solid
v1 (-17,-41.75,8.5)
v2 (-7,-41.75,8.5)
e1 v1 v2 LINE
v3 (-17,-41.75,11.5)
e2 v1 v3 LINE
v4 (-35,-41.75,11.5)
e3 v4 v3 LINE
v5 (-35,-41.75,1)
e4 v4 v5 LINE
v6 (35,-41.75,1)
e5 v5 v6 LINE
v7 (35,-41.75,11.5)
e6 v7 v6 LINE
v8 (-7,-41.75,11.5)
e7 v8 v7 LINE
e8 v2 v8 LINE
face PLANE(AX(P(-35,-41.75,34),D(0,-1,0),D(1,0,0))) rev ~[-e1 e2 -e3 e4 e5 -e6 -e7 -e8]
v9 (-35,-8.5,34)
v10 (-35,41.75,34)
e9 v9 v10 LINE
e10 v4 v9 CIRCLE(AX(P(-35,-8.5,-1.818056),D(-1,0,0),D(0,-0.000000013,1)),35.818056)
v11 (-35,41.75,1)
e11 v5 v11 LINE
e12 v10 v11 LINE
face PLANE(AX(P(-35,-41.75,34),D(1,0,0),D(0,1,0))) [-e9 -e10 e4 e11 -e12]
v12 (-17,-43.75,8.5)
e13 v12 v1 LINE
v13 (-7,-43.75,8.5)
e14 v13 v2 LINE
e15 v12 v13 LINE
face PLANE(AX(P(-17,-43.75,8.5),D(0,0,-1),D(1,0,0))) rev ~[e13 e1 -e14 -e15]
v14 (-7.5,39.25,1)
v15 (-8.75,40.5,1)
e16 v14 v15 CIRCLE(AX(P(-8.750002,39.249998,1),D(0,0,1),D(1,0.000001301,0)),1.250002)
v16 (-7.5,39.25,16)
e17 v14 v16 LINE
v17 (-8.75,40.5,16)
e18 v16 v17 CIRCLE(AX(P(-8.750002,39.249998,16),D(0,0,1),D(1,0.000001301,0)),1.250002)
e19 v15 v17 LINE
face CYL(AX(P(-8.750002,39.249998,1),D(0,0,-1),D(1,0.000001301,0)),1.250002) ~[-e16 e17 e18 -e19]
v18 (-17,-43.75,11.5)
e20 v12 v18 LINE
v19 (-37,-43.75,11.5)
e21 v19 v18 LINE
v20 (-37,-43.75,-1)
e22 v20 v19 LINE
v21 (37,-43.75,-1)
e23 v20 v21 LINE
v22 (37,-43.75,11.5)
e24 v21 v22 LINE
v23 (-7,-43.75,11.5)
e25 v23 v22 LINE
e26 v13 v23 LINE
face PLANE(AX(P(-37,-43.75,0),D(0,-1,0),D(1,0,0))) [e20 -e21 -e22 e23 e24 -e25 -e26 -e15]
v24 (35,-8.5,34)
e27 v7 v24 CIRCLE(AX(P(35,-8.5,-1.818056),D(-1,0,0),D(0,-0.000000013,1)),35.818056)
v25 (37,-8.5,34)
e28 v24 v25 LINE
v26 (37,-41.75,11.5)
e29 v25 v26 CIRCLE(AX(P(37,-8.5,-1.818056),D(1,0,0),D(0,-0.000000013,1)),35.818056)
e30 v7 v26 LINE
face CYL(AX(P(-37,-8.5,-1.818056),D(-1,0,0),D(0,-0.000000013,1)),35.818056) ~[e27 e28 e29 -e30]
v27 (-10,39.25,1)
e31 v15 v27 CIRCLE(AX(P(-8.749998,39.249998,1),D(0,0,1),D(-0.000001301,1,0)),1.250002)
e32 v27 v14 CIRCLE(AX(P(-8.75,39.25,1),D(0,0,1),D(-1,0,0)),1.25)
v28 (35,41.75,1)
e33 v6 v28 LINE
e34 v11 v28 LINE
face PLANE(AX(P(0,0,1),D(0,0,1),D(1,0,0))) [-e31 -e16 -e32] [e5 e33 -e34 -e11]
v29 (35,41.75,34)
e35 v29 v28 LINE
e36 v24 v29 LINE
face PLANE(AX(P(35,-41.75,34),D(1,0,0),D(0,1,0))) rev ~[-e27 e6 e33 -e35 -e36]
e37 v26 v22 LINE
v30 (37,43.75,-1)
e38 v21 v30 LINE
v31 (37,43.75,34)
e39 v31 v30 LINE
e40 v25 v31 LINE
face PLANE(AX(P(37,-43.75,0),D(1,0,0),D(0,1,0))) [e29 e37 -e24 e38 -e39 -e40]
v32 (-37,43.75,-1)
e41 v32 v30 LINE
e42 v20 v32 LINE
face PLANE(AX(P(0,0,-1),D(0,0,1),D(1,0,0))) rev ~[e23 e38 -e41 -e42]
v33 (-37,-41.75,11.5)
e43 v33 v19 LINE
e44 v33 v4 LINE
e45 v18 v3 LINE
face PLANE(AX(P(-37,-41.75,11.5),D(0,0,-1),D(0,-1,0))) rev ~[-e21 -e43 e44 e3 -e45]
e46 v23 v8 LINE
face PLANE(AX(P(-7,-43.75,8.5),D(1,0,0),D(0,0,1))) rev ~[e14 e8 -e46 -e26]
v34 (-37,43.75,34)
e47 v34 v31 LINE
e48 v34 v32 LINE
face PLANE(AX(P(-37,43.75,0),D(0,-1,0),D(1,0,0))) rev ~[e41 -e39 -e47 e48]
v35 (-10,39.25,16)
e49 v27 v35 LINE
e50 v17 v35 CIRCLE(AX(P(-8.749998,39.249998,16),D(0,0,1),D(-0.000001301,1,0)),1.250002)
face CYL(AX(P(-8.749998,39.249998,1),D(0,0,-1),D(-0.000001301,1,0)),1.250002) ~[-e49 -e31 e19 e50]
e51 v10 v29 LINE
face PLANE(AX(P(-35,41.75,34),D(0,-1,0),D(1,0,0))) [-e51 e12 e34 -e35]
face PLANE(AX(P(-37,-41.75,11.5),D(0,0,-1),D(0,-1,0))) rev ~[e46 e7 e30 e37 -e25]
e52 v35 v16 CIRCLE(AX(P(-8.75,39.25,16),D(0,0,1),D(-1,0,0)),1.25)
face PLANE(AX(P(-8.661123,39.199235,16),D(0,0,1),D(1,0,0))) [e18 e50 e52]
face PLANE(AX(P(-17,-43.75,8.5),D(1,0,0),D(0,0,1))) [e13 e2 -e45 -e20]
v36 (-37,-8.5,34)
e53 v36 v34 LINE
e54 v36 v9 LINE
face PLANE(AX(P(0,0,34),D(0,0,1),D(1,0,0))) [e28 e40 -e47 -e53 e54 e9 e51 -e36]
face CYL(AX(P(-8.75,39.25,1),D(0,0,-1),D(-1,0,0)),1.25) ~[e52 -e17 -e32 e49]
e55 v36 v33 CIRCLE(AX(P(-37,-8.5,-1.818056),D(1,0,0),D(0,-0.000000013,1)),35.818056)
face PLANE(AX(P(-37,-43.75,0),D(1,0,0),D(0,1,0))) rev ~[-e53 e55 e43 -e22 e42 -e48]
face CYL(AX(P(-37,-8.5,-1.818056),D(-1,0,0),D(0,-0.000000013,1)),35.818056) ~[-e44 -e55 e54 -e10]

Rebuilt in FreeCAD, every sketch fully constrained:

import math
import FreeCAD as App
import Part
import Sketcher

V = App.Vector
Q = App.Units.Quantity

doc = App.newDocument("Part")
body = doc.addObject("PartDesign::Body", "Body")

sketch1 = body.newObject("Sketcher::SketchObject", "Sketch")
sketch1.AttachmentSupport = (doc.getObject("XY_Plane"), [""])
sketch1.MapMode = "FlatFace"
sketch1.addGeometry(Part.LineSegment(V(-37, 44, 0), V(-37, -44, 0)), False)
sketch1.addGeometry(Part.LineSegment(V(-37, -44, 0), V(37, -44, 0)), False)
sketch1.addGeometry(Part.LineSegment(V(37, -44, 0), V(37, 44, 0)), False)
sketch1.addGeometry(Part.LineSegment(V(37, 44, 0), V(-37, 44, 0)), False)
sketch1.addConstraint(Sketcher.Constraint("Coincident", 0, 2, 1, 1))
sketch1.addConstraint(Sketcher.Constraint("Coincident", 1, 2, 2, 1))
sketch1.addConstraint(Sketcher.Constraint("Coincident", 2, 2, 3, 1))
sketch1.addConstraint(Sketcher.Constraint("Coincident", 3, 2, 0, 1))
sketch1.addConstraint(Sketcher.Constraint("Vertical", 0))
sketch1.addConstraint(Sketcher.Constraint("Horizontal", 1))
sketch1.addConstraint(Sketcher.Constraint("Vertical", 2))
sketch1.addConstraint(Sketcher.Constraint("Horizontal", 3))
sketch1.addConstraint(Sketcher.Constraint("Symmetric", 0, 2, 2, 2, -1, 1))
sketch1.addConstraint(Sketcher.Constraint("DistanceX", 1, 1, 1, 2, Q("74 mm")))
sketch1.addConstraint(Sketcher.Constraint("DistanceY", 0, 2, 0, 1, Q("87.5 mm")))
pad1 = body.newObject("PartDesign::Pad", "Pad")
pad1.Profile = sketch1
pad1.Length = 34

sketch2 = body.newObject("Sketcher::SketchObject", "Sketch001")
sketch2.AttachmentSupport = (doc.getObject("XY_Plane"), [""])
sketch2.MapMode = "FlatFace"
sketch2.AttachmentOffset = App.Placement(V(0, 0, 34), App.Rotation())
sketch2.addGeometry(Part.LineSegment(V(-35, 42, 0), V(-35, -42, 0)), False)
sketch2.addGeometry(Part.LineSegment(V(-35, -42, 0), V(35, -42, 0)), False)
sketch2.addGeometry(Part.LineSegment(V(35, -42, 0), V(35, 42, 0)), False)
sketch2.addGeometry(Part.LineSegment(V(35, 42, 0), V(-35, 42, 0)), False)
sketch2.addConstraint(Sketcher.Constraint("Coincident", 0, 2, 1, 1))
sketch2.addConstraint(Sketcher.Constraint("Coincident", 1, 2, 2, 1))
sketch2.addConstraint(Sketcher.Constraint("Coincident", 2, 2, 3, 1))
sketch2.addConstraint(Sketcher.Constraint("Coincident", 3, 2, 0, 1))
sketch2.addConstraint(Sketcher.Constraint("Vertical", 0))
sketch2.addConstraint(Sketcher.Constraint("Horizontal", 1))
sketch2.addConstraint(Sketcher.Constraint("Vertical", 2))
sketch2.addConstraint(Sketcher.Constraint("Horizontal", 3))
sketch2.addConstraint(Sketcher.Constraint("Symmetric", 0, 2, 2, 2, -1, 1))
sketch2.addConstraint(Sketcher.Constraint("DistanceX", 1, 1, 1, 2, Q("70 mm")))
sketch2.addConstraint(Sketcher.Constraint("DistanceY", 0, 2, 0, 1, Q("83.5 mm")))
pocket1 = body.newObject("PartDesign::Pocket", "Pocket")
pocket1.Profile = sketch2
pocket1.Length = 33

sketch3 = body.newObject("Sketcher::SketchObject", "Sketch002")
sketch3.AttachmentSupport = (doc.getObject("YZ_Plane"), [""])
sketch3.MapMode = "FlatFace"
sketch3.AttachmentOffset = App.Placement(V(0, 0, -37), App.Rotation())
sketch3.addGeometry(Part.ArcOfCircle(Part.Circle(V(-8.5, -1.8, 0), V(0, 0, 1), 35.8), math.radians(90), math.radians(158)), False)
sketch3.addGeometry(Part.LineSegment(V(-41.8, 11.5, 0), V(-43.8, 11.5, 0)), False)
sketch3.addGeometry(Part.LineSegment(V(-43.8, 11.5, 0), V(-43.8, 34, 0)), False)
sketch3.addGeometry(Part.LineSegment(V(-43.8, 34, 0), V(-8.5, 34, 0)), False)
sketch3.addConstraint(Sketcher.Constraint("Coincident", 0, 2, 1, 1))
sketch3.addConstraint(Sketcher.Constraint("Coincident", 1, 2, 2, 1))
sketch3.addConstraint(Sketcher.Constraint("Coincident", 2, 2, 3, 1))
sketch3.addConstraint(Sketcher.Constraint("Tangent", 3, 2, 0, 1))
sketch3.addConstraint(Sketcher.Constraint("Horizontal", 1))
sketch3.addConstraint(Sketcher.Constraint("Vertical", 2))
sketch3.addConstraint(Sketcher.Constraint("Horizontal", 3))
sketch3.addConstraint(Sketcher.Constraint("DistanceX", 1, 2, 1, 1, Q("2 mm")))
sketch3.addConstraint(Sketcher.Constraint("DistanceY", 2, 1, 2, 2, Q("22.5 mm")))
sketch3.addConstraint(Sketcher.Constraint("DistanceY", -1, 1, 2, 2, Q("34 mm")))
sketch3.addConstraint(Sketcher.Constraint("DistanceX", 3, 1, 3, 2, Q("35.25 mm")))
sketch3.addConstraint(Sketcher.Constraint("DistanceX", 0, 3, -1, 1, Q("8.5 mm")))
pocket2 = body.newObject("PartDesign::Pocket", "Pocket001")
pocket2.Profile = sketch3
pocket2.Length = 74
pocket2.Reversed = True

sketch4 = body.newObject("Sketcher::SketchObject", "Sketch003")
sketch4.AttachmentSupport = (doc.getObject("XY_Plane"), [""])
sketch4.MapMode = "FlatFace"
sketch4.AttachmentOffset = App.Placement(V(0, 0, 1), App.Rotation())
sketch4.addGeometry(Part.ArcOfCircle(Part.Circle(V(-8.8, 39.2, 0), V(0, 0, 1), 1.3), math.radians(0), math.radians(90)), False)
sketch4.addGeometry(Part.ArcOfCircle(Part.Circle(V(-8.7, 39.2, 0), V(0, 0, 1), 1.3), math.radians(90), math.radians(180)), False)
sketch4.addGeometry(Part.ArcOfCircle(Part.Circle(V(-8.8, 39.2, 0), V(0, 0, 1), 1.2), math.radians(180), math.radians(360)), False)
sketch4.addConstraint(Sketcher.Constraint("Coincident", 0, 2, 1, 1))
sketch4.addConstraint(Sketcher.Constraint("Tangent", 1, 2, 2, 1))
sketch4.addConstraint(Sketcher.Constraint("Tangent", 2, 2, 0, 1))
sketch4.addConstraint(Sketcher.Constraint("Equal", 1, 2))
sketch4.addConstraint(Sketcher.Constraint("Horizontal", 2, 3, 1, 2))
sketch4.addConstraint(Sketcher.Constraint("Horizontal", 1, 2, 2, 2))
sketch4.addConstraint(Sketcher.Constraint("Vertical", 2, 3, 0, 2))
sketch4.addConstraint(Sketcher.Constraint("Radius", 0, Q("1.250002 mm")))
sketch4.addConstraint(Sketcher.Constraint("DistanceX", 1, 2, -1, 1, Q("10 mm")))
sketch4.addConstraint(Sketcher.Constraint("DistanceY", -1, 1, 0, 2, Q("40.5 mm")))
pad2 = body.newObject("PartDesign::Pad", "Pad001")
pad2.Profile = sketch4
pad2.Length = 15

sketch5 = body.newObject("Sketcher::SketchObject", "Sketch004")
sketch5.AttachmentSupport = (doc.getObject("XY_Plane"), [""])
sketch5.MapMode = "FlatFace"
sketch5.addGeometry(Part.LineSegment(V(-37, 44, 0), V(-37, -44, 0)), False)
sketch5.addGeometry(Part.LineSegment(V(-37, -44, 0), V(37, -44, 0)), False)
sketch5.addGeometry(Part.LineSegment(V(37, -44, 0), V(37, 44, 0)), False)
sketch5.addGeometry(Part.LineSegment(V(37, 44, 0), V(-37, 44, 0)), False)
sketch5.addConstraint(Sketcher.Constraint("Coincident", 0, 2, 1, 1))
sketch5.addConstraint(Sketcher.Constraint("Coincident", 1, 2, 2, 1))
sketch5.addConstraint(Sketcher.Constraint("Coincident", 2, 2, 3, 1))
sketch5.addConstraint(Sketcher.Constraint("Coincident", 3, 2, 0, 1))
sketch5.addConstraint(Sketcher.Constraint("Vertical", 0))
sketch5.addConstraint(Sketcher.Constraint("Horizontal", 1))
sketch5.addConstraint(Sketcher.Constraint("Vertical", 2))
sketch5.addConstraint(Sketcher.Constraint("Horizontal", 3))
sketch5.addConstraint(Sketcher.Constraint("Symmetric", 0, 2, 2, 2, -1, 1))
sketch5.addConstraint(Sketcher.Constraint("DistanceX", 1, 1, 1, 2, Q("74 mm")))
sketch5.addConstraint(Sketcher.Constraint("DistanceY", 0, 2, 0, 1, Q("87.5 mm")))
pad3 = body.newObject("PartDesign::Pad", "Pad002")
pad3.Profile = sketch5
pad3.Length = 1
pad3.Reversed = True

sketch6 = body.newObject("Sketcher::SketchObject", "Sketch005")
sketch6.AttachmentSupport = (doc.getObject("XZ_Plane"), [""])
sketch6.MapMode = "FlatFace"
sketch6.AttachmentOffset = App.Placement(V(0, 0, 43.75), App.Rotation())
sketch6.addGeometry(Part.LineSegment(V(-17, 11.5, 0), V(-17, 8.5, 0)), False)
sketch6.addGeometry(Part.LineSegment(V(-17, 8.5, 0), V(-7, 8.5, 0)), False)
sketch6.addGeometry(Part.LineSegment(V(-7, 8.5, 0), V(-7, 11.5, 0)), False)
sketch6.addGeometry(Part.LineSegment(V(-7, 11.5, 0), V(-17, 11.5, 0)), False)
sketch6.addConstraint(Sketcher.Constraint("Coincident", 0, 2, 1, 1))
sketch6.addConstraint(Sketcher.Constraint("Coincident", 1, 2, 2, 1))
sketch6.addConstraint(Sketcher.Constraint("Coincident", 2, 2, 3, 1))
sketch6.addConstraint(Sketcher.Constraint("Coincident", 3, 2, 0, 1))
sketch6.addConstraint(Sketcher.Constraint("Vertical", 0))
sketch6.addConstraint(Sketcher.Constraint("Horizontal", 1))
sketch6.addConstraint(Sketcher.Constraint("Vertical", 2))
sketch6.addConstraint(Sketcher.Constraint("Horizontal", 3))
sketch6.addConstraint(Sketcher.Constraint("DistanceX", 1, 1, 1, 2, Q("10 mm")))
sketch6.addConstraint(Sketcher.Constraint("DistanceY", 0, 2, 0, 1, Q("3 mm")))
sketch6.addConstraint(Sketcher.Constraint("DistanceX", 0, 2, -1, 1, Q("17 mm")))
sketch6.addConstraint(Sketcher.Constraint("DistanceY", -1, 1, 0, 2, Q("8.5 mm")))
pocket3 = body.newObject("PartDesign::Pocket", "Pocket002")
pocket3.Profile = sketch6
pocket3.Length = 4

doc.recompute()
